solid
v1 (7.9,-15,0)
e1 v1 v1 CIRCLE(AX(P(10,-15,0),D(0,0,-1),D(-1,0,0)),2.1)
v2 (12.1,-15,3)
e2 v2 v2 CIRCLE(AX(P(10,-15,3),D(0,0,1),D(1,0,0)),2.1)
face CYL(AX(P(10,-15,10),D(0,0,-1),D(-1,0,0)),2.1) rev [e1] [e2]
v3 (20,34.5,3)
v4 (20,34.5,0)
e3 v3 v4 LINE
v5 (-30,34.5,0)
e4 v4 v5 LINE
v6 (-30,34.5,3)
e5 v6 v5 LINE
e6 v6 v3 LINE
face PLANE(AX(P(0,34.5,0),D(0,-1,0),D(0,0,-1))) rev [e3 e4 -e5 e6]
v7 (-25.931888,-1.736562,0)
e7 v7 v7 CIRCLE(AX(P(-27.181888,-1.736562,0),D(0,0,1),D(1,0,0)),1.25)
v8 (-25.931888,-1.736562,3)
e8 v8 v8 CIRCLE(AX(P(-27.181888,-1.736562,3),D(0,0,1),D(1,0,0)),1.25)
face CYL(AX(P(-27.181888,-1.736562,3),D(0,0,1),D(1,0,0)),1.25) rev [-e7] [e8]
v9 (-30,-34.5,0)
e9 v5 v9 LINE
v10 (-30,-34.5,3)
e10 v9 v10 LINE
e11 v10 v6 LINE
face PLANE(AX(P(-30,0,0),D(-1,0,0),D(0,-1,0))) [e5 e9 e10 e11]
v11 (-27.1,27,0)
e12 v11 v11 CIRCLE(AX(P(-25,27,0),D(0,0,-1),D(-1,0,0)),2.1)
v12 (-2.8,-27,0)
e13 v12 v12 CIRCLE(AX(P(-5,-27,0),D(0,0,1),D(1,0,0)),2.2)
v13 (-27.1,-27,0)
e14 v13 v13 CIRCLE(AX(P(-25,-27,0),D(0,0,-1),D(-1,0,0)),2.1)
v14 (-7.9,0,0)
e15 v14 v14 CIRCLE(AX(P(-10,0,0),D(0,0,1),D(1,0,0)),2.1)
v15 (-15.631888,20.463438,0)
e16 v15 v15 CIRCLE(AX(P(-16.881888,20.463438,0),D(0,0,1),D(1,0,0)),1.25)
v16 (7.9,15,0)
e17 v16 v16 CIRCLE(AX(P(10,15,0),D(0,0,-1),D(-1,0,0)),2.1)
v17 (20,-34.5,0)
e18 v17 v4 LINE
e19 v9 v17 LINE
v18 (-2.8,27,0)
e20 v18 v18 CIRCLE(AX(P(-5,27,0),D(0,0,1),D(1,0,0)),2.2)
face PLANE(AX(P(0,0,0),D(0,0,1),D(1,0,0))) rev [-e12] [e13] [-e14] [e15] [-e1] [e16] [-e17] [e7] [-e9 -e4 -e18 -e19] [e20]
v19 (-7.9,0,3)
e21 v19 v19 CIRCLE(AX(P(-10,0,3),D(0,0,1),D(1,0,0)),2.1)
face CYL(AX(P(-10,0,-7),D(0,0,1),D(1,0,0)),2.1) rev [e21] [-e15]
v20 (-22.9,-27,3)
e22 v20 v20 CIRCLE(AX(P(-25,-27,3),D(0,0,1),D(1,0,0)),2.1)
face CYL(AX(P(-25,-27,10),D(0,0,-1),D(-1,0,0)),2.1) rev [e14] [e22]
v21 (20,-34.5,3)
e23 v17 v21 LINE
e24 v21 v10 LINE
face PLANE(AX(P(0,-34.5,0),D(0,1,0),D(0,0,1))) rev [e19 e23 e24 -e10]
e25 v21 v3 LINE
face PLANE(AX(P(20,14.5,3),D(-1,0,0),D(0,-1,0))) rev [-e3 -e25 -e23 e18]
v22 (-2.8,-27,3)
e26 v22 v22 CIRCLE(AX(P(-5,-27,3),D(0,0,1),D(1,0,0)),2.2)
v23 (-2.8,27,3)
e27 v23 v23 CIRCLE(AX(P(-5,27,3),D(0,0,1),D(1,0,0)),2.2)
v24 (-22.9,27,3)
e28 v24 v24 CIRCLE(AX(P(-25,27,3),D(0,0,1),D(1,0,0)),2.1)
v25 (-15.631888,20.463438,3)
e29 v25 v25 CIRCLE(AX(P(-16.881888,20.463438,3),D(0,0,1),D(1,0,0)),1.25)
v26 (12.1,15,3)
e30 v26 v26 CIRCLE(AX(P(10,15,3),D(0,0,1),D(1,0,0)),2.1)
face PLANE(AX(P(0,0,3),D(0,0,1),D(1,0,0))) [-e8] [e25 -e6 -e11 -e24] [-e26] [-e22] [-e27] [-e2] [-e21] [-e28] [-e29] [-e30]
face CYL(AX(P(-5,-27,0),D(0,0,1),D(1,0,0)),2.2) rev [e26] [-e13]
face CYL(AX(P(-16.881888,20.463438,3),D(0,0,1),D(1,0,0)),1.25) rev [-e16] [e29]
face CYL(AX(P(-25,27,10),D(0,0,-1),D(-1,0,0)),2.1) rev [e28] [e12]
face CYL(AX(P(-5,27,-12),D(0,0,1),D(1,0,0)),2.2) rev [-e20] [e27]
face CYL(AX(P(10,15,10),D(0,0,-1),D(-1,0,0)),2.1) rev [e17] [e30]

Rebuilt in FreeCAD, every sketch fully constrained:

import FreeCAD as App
import Part
import Sketcher
from FreeCAD import Vector
Q = App.Units.Quantity

doc = App.newDocument("Part")
params = doc.addObject("Spreadsheet::Sheet", "Params")
for row, (alias, value) in enumerate([
    ("sketch1_width", "40 mm"),
    ("sketch1_height", "29 mm"),
    ("pad1_length", "3 mm"),
    ("sketch2_width", "40 mm"),
    ("sketch2_height", "3 mm"),
    ("pad2_length", "3 mm"),
    ("sketch3_width", "40 mm"),
    ("sketch3_height", "3 mm"),
    ("pad3_length", "3 mm"),
    ("sketch4_width", "40 mm"),
    ("sketch4_height", "3 mm"),
    ("pad4_length", "7 mm"),
    ("sketch5_width", "40 mm"),
    ("sketch5_height", "3 mm"),
    ("pad5_length", "7 mm"),
    ("sketch6_width", "40 mm"),
    ("sketch6_height", "3 mm"),
    ("pad6_length", "10 mm"),
    ("sketch7_width", "40 mm"),
    ("sketch7_height", "3 mm"),
    ("pad7_length", "10 mm"),
    ("sketch8_diameter", "4.4 mm"),
    ("pocket1_length", "15 mm"),
    ("sketch9_diameter", "4.4 mm"),
    ("sketch10_width", "69 mm"),
    ("sketch10_height", "3 mm"),
    ("pad8_length", "30 mm"),
    ("sketch11_diameter", "4.2 mm"),
    ("pocket3_length", "10 mm"),
    ("sketch12_diameter", "4.2 mm"),
    ("pocket4_length", "10 mm"),
    ("sketch13_width", "69 mm"),
    ("sketch13_height", "3 mm"),
    ("pocket5_length", "20 mm"),
    ("sketch14_diameter", "2.5 mm"),
    ("hole_diameter", "2.5 mm"),
    ("hole_depth", "8.5 mm"),
    ("sketch15_diameter", "4.2 mm"),
    ("pocket6_length", "10 mm"),
], start=1):
    params.set(f"A{row}", alias)
    params.set(f"B{row}", "=" + value)
    params.setAlias(f"B{row}", alias)

body = doc.addObject("PartDesign::Body", "Body")

# Sketch on XY plane
sketch1 = body.newObject("Sketcher::SketchObject", "Sketch")
sketch1.AttachmentSupport = (doc.getObject("XY_Plane"), [""])
sketch1.MapMode = "FlatFace"
sketch1.addGeometry(Part.LineSegment(Vector(-20, 14.5, 0), Vector(-20, -14.5, 0)), False)
sketch1.addGeometry(Part.LineSegment(Vector(-20, -14.5, 0), Vector(20, -14.5, 0)), False)
sketch1.addGeometry(Part.LineSegment(Vector(20, -14.5, 0), Vector(20, 14.5, 0)), False)
sketch1.addGeometry(Part.LineSegment(Vector(20, 14.5, 0), Vector(-20, 14.5, 0)), False)
sketch1.addConstraint(Sketcher.Constraint("Coincident", 0, 2, 1, 1))
sketch1.addConstraint(Sketcher.Constraint("Coincident", 1, 2, 2, 1))
sketch1.addConstraint(Sketcher.Constraint("Coincident", 2, 2, 3, 1))
sketch1.addConstraint(Sketcher.Constraint("Coincident", 3, 2, 0, 1))
sketch1.addConstraint(Sketcher.Constraint("Vertical", 0))
sketch1.addConstraint(Sketcher.Constraint("Horizontal", 1))
sketch1.addConstraint(Sketcher.Constraint("Vertical", 2))
sketch1.addConstraint(Sketcher.Constraint("Horizontal", 3))
sketch1.addConstraint(Sketcher.Constraint("Symmetric", 0, 2, 2, 2, -1, 1))
sketch1.addConstraint(Sketcher.Constraint("DistanceX", 1, 1, 1, 2, Q("40 mm")))
sketch1.addConstraint(Sketcher.Constraint("DistanceY", 0, 2, 0, 1, Q("29 mm")))
sketch1.setExpression("Constraints[9]", "Params.sketch1_width")
sketch1.setExpression("Constraints[10]", "Params.sketch1_height")
pad1 = body.newObject("PartDesign::Pad", "Pad")
pad1.Profile = sketch1
pad1.setExpression("Length", "Params.pad1_length")

# Sketch on XZ plane
sketch2 = body.newObject("Sketcher::SketchObject", "Sketch001")
sketch2.AttachmentSupport = (doc.getObject("XZ_Plane"), [""])
sketch2.MapMode = "FlatFace"
sketch2.AttachmentOffset = App.Placement(Vector(0, 0, 14.5), App.Rotation())
sketch2.addGeometry(Part.LineSegment(Vector(20, 0, 0), Vector(20, 3, 0)), False)
sketch2.addGeometry(Part.LineSegment(Vector(20, 3, 0), Vector(-20, 3, 0)), False)
sketch2.addGeometry(Part.LineSegment(Vector(-20, 3, 0), Vector(-20, 0, 0)), False)
sketch2.addGeometry(Part.LineSegment(Vector(-20, 0, 0), Vector(20, 0, 0)), False)
sketch2.addConstraint(Sketcher.Constraint("Coincident", 0, 2, 1, 1))
sketch2.addConstraint(Sketcher.Constraint("Coincident", 1, 2, 2, 1))
sketch2.addConstraint(Sketcher.Constraint("Coincident", 2, 2, 3, 1))
sketch2.addConstraint(Sketcher.Constraint("Coincident", 3, 2, 0, 1))
sketch2.addConstraint(Sketcher.Constraint("Vertical", 0))
sketch2.addConstraint(Sketcher.Constraint("Horizontal", 1))
sketch2.addConstraint(Sketcher.Constraint("Vertical", 2))
sketch2.addConstraint(Sketcher.Constraint("Horizontal", 3))
sketch2.addConstraint(Sketcher.Constraint("Symmetric", 2, 2, 3, 2, -1, 1))
sketch2.addConstraint(Sketcher.Constraint("DistanceX", 1, 2, 1, 1, Q("40 mm")))
sketch2.addConstraint(Sketcher.Constraint("DistanceY", 0, 1, 0, 2, Q("3 mm")))
sketch2.setExpression("Constraints[9]", "Params.sketch2_width")
sketch2.setExpression("Constraints[10]", "Params.sketch2_height")
pad2 = body.newObject("PartDesign::Pad", "Pad001")
pad2.Profile = sketch2
pad2.setExpression("Length", "Params.pad2_length")

# Sketch on XZ plane
sketch3 = body.newObject("Sketcher::SketchObject", "Sketch002")
sketch3.AttachmentSupport = (doc.getObject("XZ_Plane"), [""])
sketch3.MapMode = "FlatFace"
sketch3.AttachmentOffset = App.Placement(Vector(0, 0, -14.5), App.Rotation())
sketch3.addGeometry(Part.LineSegment(Vector(-20, 0, 0), Vector(-20, 3, 0)), False)
sketch3.addGeometry(Part.LineSegment(Vector(-20, 3, 0), Vector(20, 3, 0)), False)
sketch3.addGeometry(Part.LineSegment(Vector(20, 3, 0), Vector(20, 0, 0)), False)
sketch3.addGeometry(Part.LineSegment(Vector(20, 0, 0), Vector(-20, 0, 0)), False)
sketch3.addConstraint(Sketcher.Constraint("Coincident", 0, 2, 1, 1))
sketch3.addConstraint(Sketcher.Constraint("Coincident", 1, 2, 2, 1))
sketch3.addConstraint(Sketcher.Constraint("Coincident", 2, 2, 3, 1))
sketch3.addConstraint(Sketcher.Constraint("Coincident", 3, 2, 0, 1))
sketch3.addConstraint(Sketcher.Constraint("Vertical", 0))
sketch3.addConstraint(Sketcher.Constraint("Horizontal", 1))
sketch3.addConstraint(Sketcher.Constraint("Vertical", 2))
sketch3.addConstraint(Sketcher.Constraint("Horizontal", 3))
sketch3.addConstraint(Sketcher.Constraint("Symmetric", 2, 2, 3, 2, -1, 1))
sketch3.addConstraint(Sketcher.Constraint("DistanceX", 1, 1, 1, 2, Q("40 mm")))
sketch3.addConstraint(Sketcher.Constraint("DistanceY", 0, 1, 0, 2, Q("3 mm")))
sketch3.setExpression("Constraints[9]", "Params.sketch3_width")
sketch3.setExpression("Constraints[10]", "Params.sketch3_height")
pad3 = body.newObject("PartDesign::Pad", "Pad002")
pad3.Profile = sketch3
pad3.setExpression("Length", "Params.pad3_length")
pad3.Reversed = True

# Sketch on XZ plane
sketch4 = body.newObject("Sketcher::SketchObject", "Sketch003")
sketch4.AttachmentSupport = (doc.getObject("XZ_Plane"), [""])
sketch4.MapMode = "FlatFace"
sketch4.AttachmentOffset = App.Placement(Vector(0, 0, 17.5), App.Rotation())
sketch4.addGeometry(Part.LineSegment(Vector(-20, 3, 0), Vector(-20, 0, 0)), False)
sketch4.addGeometry(Part.LineSegment(Vector(-20, 0, 0), Vector(20, 0, 0)), False)
sketch4.addGeometry(Part.LineSegment(Vector(20, 0, 0), Vector(20, 3, 0)), False)
sketch4.addGeometry(Part.LineSegment(Vector(20, 3, 0), Vector(-20, 3, 0)), False)
sketch4.addConstraint(Sketcher.Constraint("Coincident", 0, 2, 1, 1))
sketch4.addConstraint(Sketcher.Constraint("Coincident", 1, 2, 2, 1))
sketch4.addConstraint(Sketcher.Constraint("Coincident", 2, 2, 3, 1))
sketch4.addConstraint(Sketcher.Constraint("Coincident", 3, 2, 0, 1))
sketch4.addConstraint(Sketcher.Constraint("Vertical", 0))
sketch4.addConstraint(Sketcher.Constraint("Horizontal", 1))
sketch4.addConstraint(Sketcher.Constraint("Vertical", 2))
sketch4.addConstraint(Sketcher.Constraint("Horizontal", 3))
sketch4.addConstraint(Sketcher.Constraint("Symmetric", 0, 2, 1, 2, -1, 1))
sketch4.addConstraint(Sketcher.Constraint("DistanceX", 1, 1, 1, 2, Q("40 mm")))
sketch4.addConstraint(Sketcher.Constraint("DistanceY", 0, 2, 0, 1, Q("3 mm")))
sketch4.setExpression("Constraints[9]", "Params.sketch4_width")
sketch4.setExpression("Constraints[10]", "Params.sketch4_height")
pad4 = body.newObject("PartDesign::Pad", "Pad003")
pad4.Profile = sketch4
pad4.setExpression("Length", "Params.pad4_length")

# Sketch on XZ plane
sketch5 = body.newObject("Sketcher::SketchObject", "Sketch004")
sketch5.AttachmentSupport = (doc.getObject("XZ_Plane"), [""])
sketch5.MapMode = "FlatFace"
sketch5.AttachmentOffset = App.Placement(Vector(0, 0, -17.5), App.Rotation())
sketch5.addGeometry(Part.LineSegment(Vector(-20, 0, 0), Vector(-20, 3, 0)), False)
sketch5.addGeometry(Part.LineSegment(Vector(-20, 3, 0), Vector(20, 3, 0)), False)
sketch5.addGeometry(Part.LineSegment(Vector(20, 3, 0), Vector(20, 0, 0)), False)
sketch5.addGeometry(Part.LineSegment(Vector(20, 0, 0), Vector(-20, 0, 0)), False)
sketch5.addConstraint(Sketcher.Constraint("Coincident", 0, 2, 1, 1))
sketch5.addConstraint(Sketcher.Constraint("Coincident", 1, 2, 2, 1))
sketch5.addConstraint(Sketcher.Constraint("Coincident", 2, 2, 3, 1))
sketch5.addConstraint(Sketcher.Constraint("Coincident", 3, 2, 0, 1))
sketch5.addConstraint(Sketcher.Constraint("Vertical", 0))
sketch5.addConstraint(Sketcher.Constraint("Horizontal", 1))
sketch5.addConstraint(Sketcher.Constraint("Vertical", 2))
sketch5.addConstraint(Sketcher.Constraint("Horizontal", 3))
sketch5.addConstraint(Sketcher.Constraint("Symmetric", 2, 2, 3, 2, -1, 1))
sketch5.addConstraint(Sketcher.Constraint("DistanceX", 1, 1, 1, 2, Q("40 mm")))
sketch5.addConstraint(Sketcher.Constraint("DistanceY", 0, 1, 0, 2, Q("3 mm")))
sketch5.setExpression("Constraints[9]", "Params.sketch5_width")
sketch5.setExpression("Constraints[10]", "Params.sketch5_height")
pad5 = body.newObject("PartDesign::Pad", "Pad004")
pad5.Profile = sketch5
pad5.setExpression("Length", "Params.pad5_length")
pad5.Reversed = True

# Sketch on XZ plane
sketch6 = body.newObject("Sketcher::SketchObject", "Sketch005")
sketch6.AttachmentSupport = (doc.getObject("XZ_Plane"), [""])
sketch6.MapMode = "FlatFace"
sketch6.AttachmentOffset = App.Placement(Vector(0, 0, -24.5), App.Rotation())
sketch6.addGeometry(Part.LineSegment(Vector(-20, 0, 0), Vector(-20, 3, 0)), False)
sketch6.addGeometry(Part.LineSegment(Vector(-20, 3, 0), Vector(20, 3, 0)), False)
sketch6.addGeometry(Part.LineSegment(Vector(20, 3, 0), Vector(20, 0, 0)), False)
sketch6.addGeometry(Part.LineSegment(Vector(20, 0, 0), Vector(-20, 0, 0)), False)
sketch6.addConstraint(Sketcher.Constraint("Coincident", 0, 2, 1, 1))
sketch6.addConstraint(Sketcher.Constraint("Coincident", 1, 2, 2, 1))
sketch6.addConstraint(Sketcher.Constraint("Coincident", 2, 2, 3, 1))
sketch6.addConstraint(Sketcher.Constraint("Coincident", 3, 2, 0, 1))
sketch6.addConstraint(Sketcher.Constraint("Vertical", 0))
sketch6.addConstraint(Sketcher.Constraint("Horizontal", 1))
sketch6.addConstraint(Sketcher.Constraint("Vertical", 2))
sketch6.addConstraint(Sketcher.Constraint("Horizontal", 3))
sketch6.addConstraint(Sketcher.Constraint("Symmetric", 2, 2, 3, 2, -1, 1))
sketch6.addConstraint(Sketcher.Constraint("DistanceX", 1, 1, 1, 2, Q("40 mm")))
sketch6.addConstraint(Sketcher.Constraint("DistanceY", 0, 1, 0, 2, Q("3 mm")))
sketch6.setExpression("Constraints[9]", "Params.sketch6_width")
sketch6.setExpression("Constraints[10]", "Params.sketch6_height")
pad6 = body.newObject("PartDesign::Pad", "Pad005")
pad6.Profile = sketch6
pad6.setExpression("Length", "Params.pad6_length")
pad6.Reversed = True

# Sketch on XZ plane
sketch7 = body.newObject("Sketcher::SketchObject", "Sketch006")
sketch7.AttachmentSupport = (doc.getObject("XZ_Plane"), [""])
sketch7.MapMode = "FlatFace"
sketch7.AttachmentOffset = App.Placement(Vector(0, 0, 24.5), App.Rotation())
sketch7.addGeometry(Part.LineSegment(Vector(-20, 3, 0), Vector(-20, 0, 0)), False)
sketch7.addGeometry(Part.LineSegment(Vector(-20, 0, 0), Vector(20, 0, 0)), False)
sketch7.addGeometry(Part.LineSegment(Vector(20, 0, 0), Vector(20, 3, 0)), False)
sketch7.addGeometry(Part.LineSegment(Vector(20, 3, 0), Vector(-20, 3, 0)), False)
sketch7.addConstraint(Sketcher.Constraint("Coincident", 0, 2, 1, 1))
sketch7.addConstraint(Sketcher.Constraint("Coincident", 1, 2, 2, 1))
sketch7.addConstraint(Sketcher.Constraint("Coincident", 2, 2, 3, 1))
sketch7.addConstraint(Sketcher.Constraint("Coincident", 3, 2, 0, 1))
sketch7.addConstraint(Sketcher.Constraint("Vertical", 0))
sketch7.addConstraint(Sketcher.Constraint("Horizontal", 1))
sketch7.addConstraint(Sketcher.Constraint("Vertical", 2))
sketch7.addConstraint(Sketcher.Constraint("Horizontal", 3))
sketch7.addConstraint(Sketcher.Constraint("Symmetric", 0, 2, 1, 2, -1, 1))
sketch7.addConstraint(Sketcher.Constraint("DistanceX", 1, 1, 1, 2, Q("40 mm")))
sketch7.addConstraint(Sketcher.Constraint("DistanceY", 0, 2, 0, 1, Q("3 mm")))
sketch7.setExpression("Constraints[9]", "Params.sketch7_width")
sketch7.setExpression("Constraints[10]", "Params.sketch7_height")
pad7 = body.newObject("PartDesign::Pad", "Pad006")
pad7.Profile = sketch7
pad7.setExpression("Length", "Params.pad7_length")

# Sketch on XY plane
sketch8 = body.newObject("Sketcher::SketchObject", "Sketch007")
sketch8.AttachmentSupport = (doc.getObject("XY_Plane"), [""])
sketch8.MapMode = "FlatFace"
sketch8.AttachmentOffset = App.Placement(Vector(0, 0, 3), App.Rotation())
sketch8.addGeometry(Part.Circle(Vector(-5, 27, 0), Vector(0, 0, 1), 2.2), False)
sketch8.addConstraint(Sketcher.Constraint("Diameter", 0, Q("4.4 mm")))
sketch8.addConstraint(Sketcher.Constraint("DistanceX", 0, 3, -1, 1, Q("5 mm")))
sketch8.addConstraint(Sketcher.Constraint("DistanceY", -1, 1, 0, 3, Q("27 mm")))
sketch8.setExpression("Constraints[0]", "Params.sketch8_diameter")
pocket1 = body.newObject("PartDesign::Pocket", "Pocket")
pocket1.Profile = sketch8
pocket1.setExpression("Length", "Params.pocket1_length")

# Sketch on XY plane
sketch9 = body.newObject("Sketcher::SketchObject", "Sketch008")
sketch9.AttachmentSupport = (doc.getObject("XY_Plane"), [""])
sketch9.MapMode = "FlatFace"
sketch9.AttachmentOffset = App.Placement(Vector(0, 0, 3), App.Rotation())
sketch9.addGeometry(Part.Circle(Vector(-5, -27, 0), Vector(0, 0, 1), 2.2), False)
sketch9.addConstraint(Sketcher.Constraint("Diameter", 0, Q("4.4 mm")))
sketch9.addConstraint(Sketcher.Constraint("DistanceX", 0, 3, -1, 1, Q("5 mm")))
sketch9.addConstraint(Sketcher.Constraint("DistanceY", 0, 3, -1, 1, Q("27 mm")))
sketch9.setExpression("Constraints[0]", "Params.sketch9_diameter")
pocket2 = body.newObject("PartDesign::Pocket", "Pocket001")
pocket2.Profile = sketch9
pocket2.Type = "ThroughAll"

# Sketch on YZ plane
sketch10 = body.newObject("Sketcher::SketchObject", "Sketch009")
sketch10.AttachmentSupport = (doc.getObject("YZ_Plane"), [""])
sketch10.MapMode = "FlatFace"
sketch10.AttachmentOffset = App.Placement(Vector(0, 0, -20), App.Rotation())
sketch10.addGeometry(Part.LineSegment(Vector(34.5, 0, 0), Vector(-34.5, 0, 0)), False)
sketch10.addGeometry(Part.LineSegment(Vector(-34.5, 0, 0), Vector(-34.5, 3, 0)), False)
sketch10.addGeometry(Part.LineSegment(Vector(-34.5, 3, 0), Vector(34.5, 3, 0)), False)
sketch10.addGeometry(Part.LineSegment(Vector(34.5, 3, 0), Vector(34.5, 0, 0)), False)
sketch10.addConstraint(Sketcher.Constraint("Coincident", 0, 2, 1, 1))
sketch10.addConstraint(Sketcher.Constraint("Coincident", 1, 2, 2, 1))
sketch10.addConstraint(Sketcher.Constraint("Coincident", 2, 2, 3, 1))
sketch10.addConstraint(Sketcher.Constraint("Coincident", 3, 2, 0, 1))
sketch10.addConstraint(Sketcher.Constraint("Horizontal", 0))
sketch10.addConstraint(Sketcher.Constraint("Vertical", 1))
sketch10.addConstraint(Sketcher.Constraint("Horizontal", 2))
sketch10.addConstraint(Sketcher.Constraint("Vertical", 3))
sketch10.addConstraint(Sketcher.Constraint("Symmetric", 0, 2, 3, 2, -1, 1))
sketch10.addConstraint(Sketcher.Constraint("DistanceX", 0, 2, 0, 1, Q("69 mm")))
sketch10.addConstraint(Sketcher.Constraint("DistanceY", 1, 1, 1, 2, Q("3 mm")))
sketch10.setExpression("Constraints[9]", "Params.sketch10_width")
sketch10.setExpression("Constraints[10]", "Params.sketch10_height")
pad8 = body.newObject("PartDesign::Pad", "Pad007")
pad8.Profile = sketch10
pad8.setExpression("Length", "Params.pad8_length")
pad8.Reversed = True

# Sketch on XY plane
sketch11 = body.newObject("Sketcher::SketchObject", "Sketch010")
sketch11.AttachmentSupport = (doc.getObject("XY_Plane"), [""])
sketch11.MapMode = "FlatFace"
sketch11.AttachmentOffset = App.Placement(Vector(0, 0, 3), App.Rotation())
sketch11.addGeometry(Part.Circle(Vector(-10, 0, 0), Vector(0, 0, 1), 2.1), False)
sketch11.addConstraint(Sketcher.Constraint("PointOnObject", 0, 3, -1))
sketch11.addConstraint(Sketcher.Constraint("Diameter", 0, Q("4.2 mm")))
sketch11.addConstraint(Sketcher.Constraint("DistanceX", 0, 3, -1, 1, Q("10 mm")))
sketch11.setExpression("Constraints[1]", "Params.sketch11_diameter")
pocket3 = body.newObject("PartDesign::Pocket", "Pocket002")
pocket3.Profile = sketch11
pocket3.setExpression("Length", "Params.pocket3_length")

# Sketch on XY plane
sketch12 = body.newObject("Sketcher::SketchObject", "Sketch011")
sketch12.AttachmentSupport = (doc.getObject("XY_Plane"), [""])
sketch12.MapMode = "FlatFace"
sketch12.addGeometry(Part.Circle(Vector(10, -15, 0), Vector(0, 0, 1), 2.1), False)
sketch12.addGeometry(Part.Circle(Vector(10, 15, 0), Vector(0, 0, 1), 2.1), False)
sketch12.addConstraint(Sketcher.Constraint("Equal", 0, 1))
sketch12.addConstraint(Sketcher.Constraint("Symmetric", 0, 3, 1, 3, -1))
sketch12.addConstraint(Sketcher.Constraint("Diameter", 0, Q("4.2 mm")))
sketch12.addConstraint(Sketcher.Constraint("DistanceX", -1, 1, 0, 3, Q("10 mm")))
sketch12.addConstraint(Sketcher.Constraint("DistanceY", 0, 3, -1, 1, Q("15 mm")))
sketch12.setExpression("Constraints[2]", "Params.sketch12_diameter")
pocket4 = body.newObject("PartDesign::Pocket", "Pocket003")
pocket4.Profile = sketch12
pocket4.setExpression("Length", "Params.pocket4_length")
pocket4.Reversed = True

# Sketch on YZ plane
sketch13 = body.newObject("Sketcher::SketchObject", "Sketch012")
sketch13.AttachmentSupport = (doc.getObject("YZ_Plane"), [""])
sketch13.MapMode = "FlatFace"
sketch13.AttachmentOffset = App.Placement(Vector(0, 0, -50), App.Rotation())
sketch13.addGeometry(Part.LineSegment(Vector(34.5, 0, 0), Vector(-34.5, 0, 0)), False)
sketch13.addGeometry(Part.LineSegment(Vector(-34.5, 0, 0), Vector(-34.5, 3, 0)), False)
sketch13.addGeometry(Part.LineSegment(Vector(-34.5, 3, 0), Vector(34.5, 3, 0)), False)
sketch13.addGeometry(Part.LineSegment(Vector(34.5, 3, 0), Vector(34.5, 0, 0)), False)
sketch13.addConstraint(Sketcher.Constraint("Coincident", 0, 2, 1, 1))
sketch13.addConstraint(Sketcher.Constraint("Coincident", 1, 2, 2, 1))
sketch13.addConstraint(Sketcher.Constraint("Coincident", 2, 2, 3, 1))
sketch13.addConstraint(Sketcher.Constraint("Coincident", 3, 2, 0, 1))
sketch13.addConstraint(Sketcher.Constraint("Horizontal", 0))
sketch13.addConstraint(Sketcher.Constraint("Vertical", 1))
sketch13.addConstraint(Sketcher.Constraint("Horizontal", 2))
sketch13.addConstraint(Sketcher.Constraint("Vertical", 3))
sketch13.addConstraint(Sketcher.Constraint("Symmetric", 0, 2, 3, 2, -1, 1))
sketch13.addConstraint(Sketcher.Constraint("DistanceX", 0, 2, 0, 1, Q("69 mm")))
sketch13.addConstraint(Sketcher.Constraint("DistanceY", 1, 1, 1, 2, Q("3 mm")))
sketch13.setExpression("Constraints[9]", "Params.sketch13_width")
sketch13.setExpression("Constraints[10]", "Params.sketch13_height")
pocket5 = body.newObject("PartDesign::Pocket", "Pocket004")
pocket5.Profile = sketch13
pocket5.setExpression("Length", "Params.pocket5_length")
pocket5.Reversed = True

# Sketch on XY plane
sketch14 = body.newObject("Sketcher::SketchObject", "Sketch013")
sketch14.AttachmentSupport = (doc.getObject("XY_Plane"), [""])
sketch14.MapMode = "FlatFace"
sketch14.AttachmentOffset = App.Placement(Vector(0, 0, 3), App.Rotation())
sketch14.addGeometry(Part.Circle(Vector(-16.881888, 20.463438, 0), Vector(0, 0, 1), 1.25), False)
sketch14.addGeometry(Part.Circle(Vector(-27.181888, -1.736562, 0), Vector(0, 0, 1), 1.25), False)
sketch14.addConstraint(Sketcher.Constraint("Equal", 0, 1))
sketch14.addConstraint(Sketcher.Constraint("Diameter", 0, Q("2.5 mm")))
sketch14.addConstraint(Sketcher.Constraint("DistanceX", 1, 3, 0, 3, Q("10.3 mm")))
sketch14.addConstraint(Sketcher.Constraint("DistanceY", 1, 3, 0, 3, Q("22.2 mm")))
sketch14.addConstraint(Sketcher.Constraint("DistanceX", 0, 3, -1, 1, Q("16.881888 mm")))
sketch14.addConstraint(Sketcher.Constraint("DistanceY", -1, 1, 0, 3, Q("20.463438 mm")))
sketch14.setExpression("Constraints[1]", "Params.sketch14_diameter")
doc.recompute()
hole = body.newObject("PartDesign::Hole", "Hole")
hole.Profile = sketch14
hole.ThreadType = "None"
hole.setExpression("Diameter", "Params.hole_diameter")
hole.DepthType = "Dimension"
hole.setExpression("Depth", "Params.hole_depth")
hole.DrillPoint = "Angled"
hole.DrillPointAngle = 118

# Sketch on XY plane
sketch15 = body.newObject("Sketcher::SketchObject", "Sketch014")
sketch15.AttachmentSupport = (doc.getObject("XY_Plane"), [""])
sketch15.MapMode = "FlatFace"
sketch15.addGeometry(Part.Circle(Vector(-25, -27, 0), Vector(0, 0, 1), 2.1), False)
sketch15.addGeometry(Part.Circle(Vector(-25, 27, 0), Vector(0, 0, 1), 2.1), False)
sketch15.addConstraint(Sketcher.Constraint("Equal", 0, 1))
sketch15.addConstraint(Sketcher.Constraint("Symmetric", 0, 3, 1, 3, -1))
sketch15.addConstraint(Sketcher.Constraint("Diameter", 0, Q("4.2 mm")))
sketch15.addConstraint(Sketcher.Constraint("DistanceX", 0, 3, -1, 1, Q("25 mm")))
sketch15.addConstraint(Sketcher.Constraint("DistanceY", 0, 3, -1, 1, Q("27 mm")))
sketch15.setExpression("Constraints[2]", "Params.sketch15_diameter")
pocket6 = body.newObject("PartDesign::Pocket", "Pocket005")
pocket6.Profile = sketch15
pocket6.setExpression("Length", "Params.pocket6_length")
pocket6.Reversed = True

doc.recompute()
